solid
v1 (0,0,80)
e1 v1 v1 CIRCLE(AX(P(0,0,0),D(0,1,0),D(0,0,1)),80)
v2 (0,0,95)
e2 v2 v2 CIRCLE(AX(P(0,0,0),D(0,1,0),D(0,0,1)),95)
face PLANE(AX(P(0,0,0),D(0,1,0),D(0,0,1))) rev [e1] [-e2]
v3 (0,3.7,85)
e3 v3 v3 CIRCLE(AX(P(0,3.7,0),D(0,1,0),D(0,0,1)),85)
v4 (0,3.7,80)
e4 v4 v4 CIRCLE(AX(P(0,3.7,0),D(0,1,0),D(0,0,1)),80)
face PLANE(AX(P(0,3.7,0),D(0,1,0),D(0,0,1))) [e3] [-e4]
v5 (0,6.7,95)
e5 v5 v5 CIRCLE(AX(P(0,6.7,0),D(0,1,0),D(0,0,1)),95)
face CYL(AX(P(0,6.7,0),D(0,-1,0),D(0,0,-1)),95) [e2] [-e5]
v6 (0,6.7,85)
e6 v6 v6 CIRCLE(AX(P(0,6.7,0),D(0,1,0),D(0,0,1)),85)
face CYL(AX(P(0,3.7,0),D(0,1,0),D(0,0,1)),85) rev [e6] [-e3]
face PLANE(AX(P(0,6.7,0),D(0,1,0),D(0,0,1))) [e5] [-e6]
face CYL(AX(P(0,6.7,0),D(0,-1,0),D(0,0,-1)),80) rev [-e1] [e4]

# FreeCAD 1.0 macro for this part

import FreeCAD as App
import Part
import Sketcher
Q = App.Units.Quantity

doc = App.newDocument("Part")
params = doc.addObject("Spreadsheet::Sheet", "Params")
for row, (alias, value) in enumerate([
    ("sketch1_diameter", "190 mm"),
    ("sketch1_diameter2", "160 mm"),
    ("pad1_length", "6.7 mm"),
    ("sketch2_diameter", "170 mm"),
    ("pocket1_length", "3 mm"),
], start=1):
    params.set(f"A{row}", alias)
    params.set(f"B{row}", "=" + value)
    params.setAlias(f"B{row}", alias)

body = doc.addObject("PartDesign::Body", "Body")

sketch1 = body.newObject("Sketcher::SketchObject", "Sketch")
sketch1.AttachmentSupport = (doc.getObject("XZ_Plane"), [""])
sketch1.MapMode = "FlatFace"
sketch1.addGeometry([
    Part.Circle(App.Vector(0, 0, 0), App.Vector(0, 0, 1), 95),
    Part.Circle(App.Vector(0, 0, 0), App.Vector(0, 0, 1), 80),
], False)
sketch1.addConstraint([
    Sketcher.Constraint("Coincident", 0, 3, -1, 1),
    Sketcher.Constraint("Coincident", 1, 3, -1, 1),
    Sketcher.Constraint("Diameter", 0, Q("190 mm")),
    Sketcher.Constraint("Diameter", 1, Q("160 mm")),
])
sketch1.setExpression("Constraints[2]", "Params.sketch1_diameter")
sketch1.setExpression("Constraints[3]", "Params.sketch1_diameter2")
pad1 = body.newObject("PartDesign::Pad", "Pad")
pad1.Profile = sketch1
pad1.setExpression("Length", "Params.pad1_length")
pad1.Reversed = True

sketch2 = body.newObject("Sketcher::SketchObject", "Sketch001")
sketch2.AttachmentSupport = (doc.getObject("XZ_Plane"), [""])
sketch2.MapMode = "FlatFace"
sketch2.AttachmentOffset = App.Placement(App.Vector(0, 0, -6.7), App.Rotation())
sketch2.addGeometry(Part.Circle(App.Vector(0, 0, 0), App.Vector(0, 0, 1), 85), False)
sketch2.addConstraint([
    Sketcher.Constraint("Coincident", 0, 3, -1, 1),
    Sketcher.Constraint("Diameter", 0, Q("170 mm")),
])
sketch2.setExpression("Constraints[1]", "Params.sketch2_diameter")
pocket1 = body.newObject("PartDesign::Pocket", "Pocket")
pocket1.Profile = sketch2
pocket1.setExpression("Length", "Params.pocket1_length")
pocket1.Reversed = True

doc.recompute()
